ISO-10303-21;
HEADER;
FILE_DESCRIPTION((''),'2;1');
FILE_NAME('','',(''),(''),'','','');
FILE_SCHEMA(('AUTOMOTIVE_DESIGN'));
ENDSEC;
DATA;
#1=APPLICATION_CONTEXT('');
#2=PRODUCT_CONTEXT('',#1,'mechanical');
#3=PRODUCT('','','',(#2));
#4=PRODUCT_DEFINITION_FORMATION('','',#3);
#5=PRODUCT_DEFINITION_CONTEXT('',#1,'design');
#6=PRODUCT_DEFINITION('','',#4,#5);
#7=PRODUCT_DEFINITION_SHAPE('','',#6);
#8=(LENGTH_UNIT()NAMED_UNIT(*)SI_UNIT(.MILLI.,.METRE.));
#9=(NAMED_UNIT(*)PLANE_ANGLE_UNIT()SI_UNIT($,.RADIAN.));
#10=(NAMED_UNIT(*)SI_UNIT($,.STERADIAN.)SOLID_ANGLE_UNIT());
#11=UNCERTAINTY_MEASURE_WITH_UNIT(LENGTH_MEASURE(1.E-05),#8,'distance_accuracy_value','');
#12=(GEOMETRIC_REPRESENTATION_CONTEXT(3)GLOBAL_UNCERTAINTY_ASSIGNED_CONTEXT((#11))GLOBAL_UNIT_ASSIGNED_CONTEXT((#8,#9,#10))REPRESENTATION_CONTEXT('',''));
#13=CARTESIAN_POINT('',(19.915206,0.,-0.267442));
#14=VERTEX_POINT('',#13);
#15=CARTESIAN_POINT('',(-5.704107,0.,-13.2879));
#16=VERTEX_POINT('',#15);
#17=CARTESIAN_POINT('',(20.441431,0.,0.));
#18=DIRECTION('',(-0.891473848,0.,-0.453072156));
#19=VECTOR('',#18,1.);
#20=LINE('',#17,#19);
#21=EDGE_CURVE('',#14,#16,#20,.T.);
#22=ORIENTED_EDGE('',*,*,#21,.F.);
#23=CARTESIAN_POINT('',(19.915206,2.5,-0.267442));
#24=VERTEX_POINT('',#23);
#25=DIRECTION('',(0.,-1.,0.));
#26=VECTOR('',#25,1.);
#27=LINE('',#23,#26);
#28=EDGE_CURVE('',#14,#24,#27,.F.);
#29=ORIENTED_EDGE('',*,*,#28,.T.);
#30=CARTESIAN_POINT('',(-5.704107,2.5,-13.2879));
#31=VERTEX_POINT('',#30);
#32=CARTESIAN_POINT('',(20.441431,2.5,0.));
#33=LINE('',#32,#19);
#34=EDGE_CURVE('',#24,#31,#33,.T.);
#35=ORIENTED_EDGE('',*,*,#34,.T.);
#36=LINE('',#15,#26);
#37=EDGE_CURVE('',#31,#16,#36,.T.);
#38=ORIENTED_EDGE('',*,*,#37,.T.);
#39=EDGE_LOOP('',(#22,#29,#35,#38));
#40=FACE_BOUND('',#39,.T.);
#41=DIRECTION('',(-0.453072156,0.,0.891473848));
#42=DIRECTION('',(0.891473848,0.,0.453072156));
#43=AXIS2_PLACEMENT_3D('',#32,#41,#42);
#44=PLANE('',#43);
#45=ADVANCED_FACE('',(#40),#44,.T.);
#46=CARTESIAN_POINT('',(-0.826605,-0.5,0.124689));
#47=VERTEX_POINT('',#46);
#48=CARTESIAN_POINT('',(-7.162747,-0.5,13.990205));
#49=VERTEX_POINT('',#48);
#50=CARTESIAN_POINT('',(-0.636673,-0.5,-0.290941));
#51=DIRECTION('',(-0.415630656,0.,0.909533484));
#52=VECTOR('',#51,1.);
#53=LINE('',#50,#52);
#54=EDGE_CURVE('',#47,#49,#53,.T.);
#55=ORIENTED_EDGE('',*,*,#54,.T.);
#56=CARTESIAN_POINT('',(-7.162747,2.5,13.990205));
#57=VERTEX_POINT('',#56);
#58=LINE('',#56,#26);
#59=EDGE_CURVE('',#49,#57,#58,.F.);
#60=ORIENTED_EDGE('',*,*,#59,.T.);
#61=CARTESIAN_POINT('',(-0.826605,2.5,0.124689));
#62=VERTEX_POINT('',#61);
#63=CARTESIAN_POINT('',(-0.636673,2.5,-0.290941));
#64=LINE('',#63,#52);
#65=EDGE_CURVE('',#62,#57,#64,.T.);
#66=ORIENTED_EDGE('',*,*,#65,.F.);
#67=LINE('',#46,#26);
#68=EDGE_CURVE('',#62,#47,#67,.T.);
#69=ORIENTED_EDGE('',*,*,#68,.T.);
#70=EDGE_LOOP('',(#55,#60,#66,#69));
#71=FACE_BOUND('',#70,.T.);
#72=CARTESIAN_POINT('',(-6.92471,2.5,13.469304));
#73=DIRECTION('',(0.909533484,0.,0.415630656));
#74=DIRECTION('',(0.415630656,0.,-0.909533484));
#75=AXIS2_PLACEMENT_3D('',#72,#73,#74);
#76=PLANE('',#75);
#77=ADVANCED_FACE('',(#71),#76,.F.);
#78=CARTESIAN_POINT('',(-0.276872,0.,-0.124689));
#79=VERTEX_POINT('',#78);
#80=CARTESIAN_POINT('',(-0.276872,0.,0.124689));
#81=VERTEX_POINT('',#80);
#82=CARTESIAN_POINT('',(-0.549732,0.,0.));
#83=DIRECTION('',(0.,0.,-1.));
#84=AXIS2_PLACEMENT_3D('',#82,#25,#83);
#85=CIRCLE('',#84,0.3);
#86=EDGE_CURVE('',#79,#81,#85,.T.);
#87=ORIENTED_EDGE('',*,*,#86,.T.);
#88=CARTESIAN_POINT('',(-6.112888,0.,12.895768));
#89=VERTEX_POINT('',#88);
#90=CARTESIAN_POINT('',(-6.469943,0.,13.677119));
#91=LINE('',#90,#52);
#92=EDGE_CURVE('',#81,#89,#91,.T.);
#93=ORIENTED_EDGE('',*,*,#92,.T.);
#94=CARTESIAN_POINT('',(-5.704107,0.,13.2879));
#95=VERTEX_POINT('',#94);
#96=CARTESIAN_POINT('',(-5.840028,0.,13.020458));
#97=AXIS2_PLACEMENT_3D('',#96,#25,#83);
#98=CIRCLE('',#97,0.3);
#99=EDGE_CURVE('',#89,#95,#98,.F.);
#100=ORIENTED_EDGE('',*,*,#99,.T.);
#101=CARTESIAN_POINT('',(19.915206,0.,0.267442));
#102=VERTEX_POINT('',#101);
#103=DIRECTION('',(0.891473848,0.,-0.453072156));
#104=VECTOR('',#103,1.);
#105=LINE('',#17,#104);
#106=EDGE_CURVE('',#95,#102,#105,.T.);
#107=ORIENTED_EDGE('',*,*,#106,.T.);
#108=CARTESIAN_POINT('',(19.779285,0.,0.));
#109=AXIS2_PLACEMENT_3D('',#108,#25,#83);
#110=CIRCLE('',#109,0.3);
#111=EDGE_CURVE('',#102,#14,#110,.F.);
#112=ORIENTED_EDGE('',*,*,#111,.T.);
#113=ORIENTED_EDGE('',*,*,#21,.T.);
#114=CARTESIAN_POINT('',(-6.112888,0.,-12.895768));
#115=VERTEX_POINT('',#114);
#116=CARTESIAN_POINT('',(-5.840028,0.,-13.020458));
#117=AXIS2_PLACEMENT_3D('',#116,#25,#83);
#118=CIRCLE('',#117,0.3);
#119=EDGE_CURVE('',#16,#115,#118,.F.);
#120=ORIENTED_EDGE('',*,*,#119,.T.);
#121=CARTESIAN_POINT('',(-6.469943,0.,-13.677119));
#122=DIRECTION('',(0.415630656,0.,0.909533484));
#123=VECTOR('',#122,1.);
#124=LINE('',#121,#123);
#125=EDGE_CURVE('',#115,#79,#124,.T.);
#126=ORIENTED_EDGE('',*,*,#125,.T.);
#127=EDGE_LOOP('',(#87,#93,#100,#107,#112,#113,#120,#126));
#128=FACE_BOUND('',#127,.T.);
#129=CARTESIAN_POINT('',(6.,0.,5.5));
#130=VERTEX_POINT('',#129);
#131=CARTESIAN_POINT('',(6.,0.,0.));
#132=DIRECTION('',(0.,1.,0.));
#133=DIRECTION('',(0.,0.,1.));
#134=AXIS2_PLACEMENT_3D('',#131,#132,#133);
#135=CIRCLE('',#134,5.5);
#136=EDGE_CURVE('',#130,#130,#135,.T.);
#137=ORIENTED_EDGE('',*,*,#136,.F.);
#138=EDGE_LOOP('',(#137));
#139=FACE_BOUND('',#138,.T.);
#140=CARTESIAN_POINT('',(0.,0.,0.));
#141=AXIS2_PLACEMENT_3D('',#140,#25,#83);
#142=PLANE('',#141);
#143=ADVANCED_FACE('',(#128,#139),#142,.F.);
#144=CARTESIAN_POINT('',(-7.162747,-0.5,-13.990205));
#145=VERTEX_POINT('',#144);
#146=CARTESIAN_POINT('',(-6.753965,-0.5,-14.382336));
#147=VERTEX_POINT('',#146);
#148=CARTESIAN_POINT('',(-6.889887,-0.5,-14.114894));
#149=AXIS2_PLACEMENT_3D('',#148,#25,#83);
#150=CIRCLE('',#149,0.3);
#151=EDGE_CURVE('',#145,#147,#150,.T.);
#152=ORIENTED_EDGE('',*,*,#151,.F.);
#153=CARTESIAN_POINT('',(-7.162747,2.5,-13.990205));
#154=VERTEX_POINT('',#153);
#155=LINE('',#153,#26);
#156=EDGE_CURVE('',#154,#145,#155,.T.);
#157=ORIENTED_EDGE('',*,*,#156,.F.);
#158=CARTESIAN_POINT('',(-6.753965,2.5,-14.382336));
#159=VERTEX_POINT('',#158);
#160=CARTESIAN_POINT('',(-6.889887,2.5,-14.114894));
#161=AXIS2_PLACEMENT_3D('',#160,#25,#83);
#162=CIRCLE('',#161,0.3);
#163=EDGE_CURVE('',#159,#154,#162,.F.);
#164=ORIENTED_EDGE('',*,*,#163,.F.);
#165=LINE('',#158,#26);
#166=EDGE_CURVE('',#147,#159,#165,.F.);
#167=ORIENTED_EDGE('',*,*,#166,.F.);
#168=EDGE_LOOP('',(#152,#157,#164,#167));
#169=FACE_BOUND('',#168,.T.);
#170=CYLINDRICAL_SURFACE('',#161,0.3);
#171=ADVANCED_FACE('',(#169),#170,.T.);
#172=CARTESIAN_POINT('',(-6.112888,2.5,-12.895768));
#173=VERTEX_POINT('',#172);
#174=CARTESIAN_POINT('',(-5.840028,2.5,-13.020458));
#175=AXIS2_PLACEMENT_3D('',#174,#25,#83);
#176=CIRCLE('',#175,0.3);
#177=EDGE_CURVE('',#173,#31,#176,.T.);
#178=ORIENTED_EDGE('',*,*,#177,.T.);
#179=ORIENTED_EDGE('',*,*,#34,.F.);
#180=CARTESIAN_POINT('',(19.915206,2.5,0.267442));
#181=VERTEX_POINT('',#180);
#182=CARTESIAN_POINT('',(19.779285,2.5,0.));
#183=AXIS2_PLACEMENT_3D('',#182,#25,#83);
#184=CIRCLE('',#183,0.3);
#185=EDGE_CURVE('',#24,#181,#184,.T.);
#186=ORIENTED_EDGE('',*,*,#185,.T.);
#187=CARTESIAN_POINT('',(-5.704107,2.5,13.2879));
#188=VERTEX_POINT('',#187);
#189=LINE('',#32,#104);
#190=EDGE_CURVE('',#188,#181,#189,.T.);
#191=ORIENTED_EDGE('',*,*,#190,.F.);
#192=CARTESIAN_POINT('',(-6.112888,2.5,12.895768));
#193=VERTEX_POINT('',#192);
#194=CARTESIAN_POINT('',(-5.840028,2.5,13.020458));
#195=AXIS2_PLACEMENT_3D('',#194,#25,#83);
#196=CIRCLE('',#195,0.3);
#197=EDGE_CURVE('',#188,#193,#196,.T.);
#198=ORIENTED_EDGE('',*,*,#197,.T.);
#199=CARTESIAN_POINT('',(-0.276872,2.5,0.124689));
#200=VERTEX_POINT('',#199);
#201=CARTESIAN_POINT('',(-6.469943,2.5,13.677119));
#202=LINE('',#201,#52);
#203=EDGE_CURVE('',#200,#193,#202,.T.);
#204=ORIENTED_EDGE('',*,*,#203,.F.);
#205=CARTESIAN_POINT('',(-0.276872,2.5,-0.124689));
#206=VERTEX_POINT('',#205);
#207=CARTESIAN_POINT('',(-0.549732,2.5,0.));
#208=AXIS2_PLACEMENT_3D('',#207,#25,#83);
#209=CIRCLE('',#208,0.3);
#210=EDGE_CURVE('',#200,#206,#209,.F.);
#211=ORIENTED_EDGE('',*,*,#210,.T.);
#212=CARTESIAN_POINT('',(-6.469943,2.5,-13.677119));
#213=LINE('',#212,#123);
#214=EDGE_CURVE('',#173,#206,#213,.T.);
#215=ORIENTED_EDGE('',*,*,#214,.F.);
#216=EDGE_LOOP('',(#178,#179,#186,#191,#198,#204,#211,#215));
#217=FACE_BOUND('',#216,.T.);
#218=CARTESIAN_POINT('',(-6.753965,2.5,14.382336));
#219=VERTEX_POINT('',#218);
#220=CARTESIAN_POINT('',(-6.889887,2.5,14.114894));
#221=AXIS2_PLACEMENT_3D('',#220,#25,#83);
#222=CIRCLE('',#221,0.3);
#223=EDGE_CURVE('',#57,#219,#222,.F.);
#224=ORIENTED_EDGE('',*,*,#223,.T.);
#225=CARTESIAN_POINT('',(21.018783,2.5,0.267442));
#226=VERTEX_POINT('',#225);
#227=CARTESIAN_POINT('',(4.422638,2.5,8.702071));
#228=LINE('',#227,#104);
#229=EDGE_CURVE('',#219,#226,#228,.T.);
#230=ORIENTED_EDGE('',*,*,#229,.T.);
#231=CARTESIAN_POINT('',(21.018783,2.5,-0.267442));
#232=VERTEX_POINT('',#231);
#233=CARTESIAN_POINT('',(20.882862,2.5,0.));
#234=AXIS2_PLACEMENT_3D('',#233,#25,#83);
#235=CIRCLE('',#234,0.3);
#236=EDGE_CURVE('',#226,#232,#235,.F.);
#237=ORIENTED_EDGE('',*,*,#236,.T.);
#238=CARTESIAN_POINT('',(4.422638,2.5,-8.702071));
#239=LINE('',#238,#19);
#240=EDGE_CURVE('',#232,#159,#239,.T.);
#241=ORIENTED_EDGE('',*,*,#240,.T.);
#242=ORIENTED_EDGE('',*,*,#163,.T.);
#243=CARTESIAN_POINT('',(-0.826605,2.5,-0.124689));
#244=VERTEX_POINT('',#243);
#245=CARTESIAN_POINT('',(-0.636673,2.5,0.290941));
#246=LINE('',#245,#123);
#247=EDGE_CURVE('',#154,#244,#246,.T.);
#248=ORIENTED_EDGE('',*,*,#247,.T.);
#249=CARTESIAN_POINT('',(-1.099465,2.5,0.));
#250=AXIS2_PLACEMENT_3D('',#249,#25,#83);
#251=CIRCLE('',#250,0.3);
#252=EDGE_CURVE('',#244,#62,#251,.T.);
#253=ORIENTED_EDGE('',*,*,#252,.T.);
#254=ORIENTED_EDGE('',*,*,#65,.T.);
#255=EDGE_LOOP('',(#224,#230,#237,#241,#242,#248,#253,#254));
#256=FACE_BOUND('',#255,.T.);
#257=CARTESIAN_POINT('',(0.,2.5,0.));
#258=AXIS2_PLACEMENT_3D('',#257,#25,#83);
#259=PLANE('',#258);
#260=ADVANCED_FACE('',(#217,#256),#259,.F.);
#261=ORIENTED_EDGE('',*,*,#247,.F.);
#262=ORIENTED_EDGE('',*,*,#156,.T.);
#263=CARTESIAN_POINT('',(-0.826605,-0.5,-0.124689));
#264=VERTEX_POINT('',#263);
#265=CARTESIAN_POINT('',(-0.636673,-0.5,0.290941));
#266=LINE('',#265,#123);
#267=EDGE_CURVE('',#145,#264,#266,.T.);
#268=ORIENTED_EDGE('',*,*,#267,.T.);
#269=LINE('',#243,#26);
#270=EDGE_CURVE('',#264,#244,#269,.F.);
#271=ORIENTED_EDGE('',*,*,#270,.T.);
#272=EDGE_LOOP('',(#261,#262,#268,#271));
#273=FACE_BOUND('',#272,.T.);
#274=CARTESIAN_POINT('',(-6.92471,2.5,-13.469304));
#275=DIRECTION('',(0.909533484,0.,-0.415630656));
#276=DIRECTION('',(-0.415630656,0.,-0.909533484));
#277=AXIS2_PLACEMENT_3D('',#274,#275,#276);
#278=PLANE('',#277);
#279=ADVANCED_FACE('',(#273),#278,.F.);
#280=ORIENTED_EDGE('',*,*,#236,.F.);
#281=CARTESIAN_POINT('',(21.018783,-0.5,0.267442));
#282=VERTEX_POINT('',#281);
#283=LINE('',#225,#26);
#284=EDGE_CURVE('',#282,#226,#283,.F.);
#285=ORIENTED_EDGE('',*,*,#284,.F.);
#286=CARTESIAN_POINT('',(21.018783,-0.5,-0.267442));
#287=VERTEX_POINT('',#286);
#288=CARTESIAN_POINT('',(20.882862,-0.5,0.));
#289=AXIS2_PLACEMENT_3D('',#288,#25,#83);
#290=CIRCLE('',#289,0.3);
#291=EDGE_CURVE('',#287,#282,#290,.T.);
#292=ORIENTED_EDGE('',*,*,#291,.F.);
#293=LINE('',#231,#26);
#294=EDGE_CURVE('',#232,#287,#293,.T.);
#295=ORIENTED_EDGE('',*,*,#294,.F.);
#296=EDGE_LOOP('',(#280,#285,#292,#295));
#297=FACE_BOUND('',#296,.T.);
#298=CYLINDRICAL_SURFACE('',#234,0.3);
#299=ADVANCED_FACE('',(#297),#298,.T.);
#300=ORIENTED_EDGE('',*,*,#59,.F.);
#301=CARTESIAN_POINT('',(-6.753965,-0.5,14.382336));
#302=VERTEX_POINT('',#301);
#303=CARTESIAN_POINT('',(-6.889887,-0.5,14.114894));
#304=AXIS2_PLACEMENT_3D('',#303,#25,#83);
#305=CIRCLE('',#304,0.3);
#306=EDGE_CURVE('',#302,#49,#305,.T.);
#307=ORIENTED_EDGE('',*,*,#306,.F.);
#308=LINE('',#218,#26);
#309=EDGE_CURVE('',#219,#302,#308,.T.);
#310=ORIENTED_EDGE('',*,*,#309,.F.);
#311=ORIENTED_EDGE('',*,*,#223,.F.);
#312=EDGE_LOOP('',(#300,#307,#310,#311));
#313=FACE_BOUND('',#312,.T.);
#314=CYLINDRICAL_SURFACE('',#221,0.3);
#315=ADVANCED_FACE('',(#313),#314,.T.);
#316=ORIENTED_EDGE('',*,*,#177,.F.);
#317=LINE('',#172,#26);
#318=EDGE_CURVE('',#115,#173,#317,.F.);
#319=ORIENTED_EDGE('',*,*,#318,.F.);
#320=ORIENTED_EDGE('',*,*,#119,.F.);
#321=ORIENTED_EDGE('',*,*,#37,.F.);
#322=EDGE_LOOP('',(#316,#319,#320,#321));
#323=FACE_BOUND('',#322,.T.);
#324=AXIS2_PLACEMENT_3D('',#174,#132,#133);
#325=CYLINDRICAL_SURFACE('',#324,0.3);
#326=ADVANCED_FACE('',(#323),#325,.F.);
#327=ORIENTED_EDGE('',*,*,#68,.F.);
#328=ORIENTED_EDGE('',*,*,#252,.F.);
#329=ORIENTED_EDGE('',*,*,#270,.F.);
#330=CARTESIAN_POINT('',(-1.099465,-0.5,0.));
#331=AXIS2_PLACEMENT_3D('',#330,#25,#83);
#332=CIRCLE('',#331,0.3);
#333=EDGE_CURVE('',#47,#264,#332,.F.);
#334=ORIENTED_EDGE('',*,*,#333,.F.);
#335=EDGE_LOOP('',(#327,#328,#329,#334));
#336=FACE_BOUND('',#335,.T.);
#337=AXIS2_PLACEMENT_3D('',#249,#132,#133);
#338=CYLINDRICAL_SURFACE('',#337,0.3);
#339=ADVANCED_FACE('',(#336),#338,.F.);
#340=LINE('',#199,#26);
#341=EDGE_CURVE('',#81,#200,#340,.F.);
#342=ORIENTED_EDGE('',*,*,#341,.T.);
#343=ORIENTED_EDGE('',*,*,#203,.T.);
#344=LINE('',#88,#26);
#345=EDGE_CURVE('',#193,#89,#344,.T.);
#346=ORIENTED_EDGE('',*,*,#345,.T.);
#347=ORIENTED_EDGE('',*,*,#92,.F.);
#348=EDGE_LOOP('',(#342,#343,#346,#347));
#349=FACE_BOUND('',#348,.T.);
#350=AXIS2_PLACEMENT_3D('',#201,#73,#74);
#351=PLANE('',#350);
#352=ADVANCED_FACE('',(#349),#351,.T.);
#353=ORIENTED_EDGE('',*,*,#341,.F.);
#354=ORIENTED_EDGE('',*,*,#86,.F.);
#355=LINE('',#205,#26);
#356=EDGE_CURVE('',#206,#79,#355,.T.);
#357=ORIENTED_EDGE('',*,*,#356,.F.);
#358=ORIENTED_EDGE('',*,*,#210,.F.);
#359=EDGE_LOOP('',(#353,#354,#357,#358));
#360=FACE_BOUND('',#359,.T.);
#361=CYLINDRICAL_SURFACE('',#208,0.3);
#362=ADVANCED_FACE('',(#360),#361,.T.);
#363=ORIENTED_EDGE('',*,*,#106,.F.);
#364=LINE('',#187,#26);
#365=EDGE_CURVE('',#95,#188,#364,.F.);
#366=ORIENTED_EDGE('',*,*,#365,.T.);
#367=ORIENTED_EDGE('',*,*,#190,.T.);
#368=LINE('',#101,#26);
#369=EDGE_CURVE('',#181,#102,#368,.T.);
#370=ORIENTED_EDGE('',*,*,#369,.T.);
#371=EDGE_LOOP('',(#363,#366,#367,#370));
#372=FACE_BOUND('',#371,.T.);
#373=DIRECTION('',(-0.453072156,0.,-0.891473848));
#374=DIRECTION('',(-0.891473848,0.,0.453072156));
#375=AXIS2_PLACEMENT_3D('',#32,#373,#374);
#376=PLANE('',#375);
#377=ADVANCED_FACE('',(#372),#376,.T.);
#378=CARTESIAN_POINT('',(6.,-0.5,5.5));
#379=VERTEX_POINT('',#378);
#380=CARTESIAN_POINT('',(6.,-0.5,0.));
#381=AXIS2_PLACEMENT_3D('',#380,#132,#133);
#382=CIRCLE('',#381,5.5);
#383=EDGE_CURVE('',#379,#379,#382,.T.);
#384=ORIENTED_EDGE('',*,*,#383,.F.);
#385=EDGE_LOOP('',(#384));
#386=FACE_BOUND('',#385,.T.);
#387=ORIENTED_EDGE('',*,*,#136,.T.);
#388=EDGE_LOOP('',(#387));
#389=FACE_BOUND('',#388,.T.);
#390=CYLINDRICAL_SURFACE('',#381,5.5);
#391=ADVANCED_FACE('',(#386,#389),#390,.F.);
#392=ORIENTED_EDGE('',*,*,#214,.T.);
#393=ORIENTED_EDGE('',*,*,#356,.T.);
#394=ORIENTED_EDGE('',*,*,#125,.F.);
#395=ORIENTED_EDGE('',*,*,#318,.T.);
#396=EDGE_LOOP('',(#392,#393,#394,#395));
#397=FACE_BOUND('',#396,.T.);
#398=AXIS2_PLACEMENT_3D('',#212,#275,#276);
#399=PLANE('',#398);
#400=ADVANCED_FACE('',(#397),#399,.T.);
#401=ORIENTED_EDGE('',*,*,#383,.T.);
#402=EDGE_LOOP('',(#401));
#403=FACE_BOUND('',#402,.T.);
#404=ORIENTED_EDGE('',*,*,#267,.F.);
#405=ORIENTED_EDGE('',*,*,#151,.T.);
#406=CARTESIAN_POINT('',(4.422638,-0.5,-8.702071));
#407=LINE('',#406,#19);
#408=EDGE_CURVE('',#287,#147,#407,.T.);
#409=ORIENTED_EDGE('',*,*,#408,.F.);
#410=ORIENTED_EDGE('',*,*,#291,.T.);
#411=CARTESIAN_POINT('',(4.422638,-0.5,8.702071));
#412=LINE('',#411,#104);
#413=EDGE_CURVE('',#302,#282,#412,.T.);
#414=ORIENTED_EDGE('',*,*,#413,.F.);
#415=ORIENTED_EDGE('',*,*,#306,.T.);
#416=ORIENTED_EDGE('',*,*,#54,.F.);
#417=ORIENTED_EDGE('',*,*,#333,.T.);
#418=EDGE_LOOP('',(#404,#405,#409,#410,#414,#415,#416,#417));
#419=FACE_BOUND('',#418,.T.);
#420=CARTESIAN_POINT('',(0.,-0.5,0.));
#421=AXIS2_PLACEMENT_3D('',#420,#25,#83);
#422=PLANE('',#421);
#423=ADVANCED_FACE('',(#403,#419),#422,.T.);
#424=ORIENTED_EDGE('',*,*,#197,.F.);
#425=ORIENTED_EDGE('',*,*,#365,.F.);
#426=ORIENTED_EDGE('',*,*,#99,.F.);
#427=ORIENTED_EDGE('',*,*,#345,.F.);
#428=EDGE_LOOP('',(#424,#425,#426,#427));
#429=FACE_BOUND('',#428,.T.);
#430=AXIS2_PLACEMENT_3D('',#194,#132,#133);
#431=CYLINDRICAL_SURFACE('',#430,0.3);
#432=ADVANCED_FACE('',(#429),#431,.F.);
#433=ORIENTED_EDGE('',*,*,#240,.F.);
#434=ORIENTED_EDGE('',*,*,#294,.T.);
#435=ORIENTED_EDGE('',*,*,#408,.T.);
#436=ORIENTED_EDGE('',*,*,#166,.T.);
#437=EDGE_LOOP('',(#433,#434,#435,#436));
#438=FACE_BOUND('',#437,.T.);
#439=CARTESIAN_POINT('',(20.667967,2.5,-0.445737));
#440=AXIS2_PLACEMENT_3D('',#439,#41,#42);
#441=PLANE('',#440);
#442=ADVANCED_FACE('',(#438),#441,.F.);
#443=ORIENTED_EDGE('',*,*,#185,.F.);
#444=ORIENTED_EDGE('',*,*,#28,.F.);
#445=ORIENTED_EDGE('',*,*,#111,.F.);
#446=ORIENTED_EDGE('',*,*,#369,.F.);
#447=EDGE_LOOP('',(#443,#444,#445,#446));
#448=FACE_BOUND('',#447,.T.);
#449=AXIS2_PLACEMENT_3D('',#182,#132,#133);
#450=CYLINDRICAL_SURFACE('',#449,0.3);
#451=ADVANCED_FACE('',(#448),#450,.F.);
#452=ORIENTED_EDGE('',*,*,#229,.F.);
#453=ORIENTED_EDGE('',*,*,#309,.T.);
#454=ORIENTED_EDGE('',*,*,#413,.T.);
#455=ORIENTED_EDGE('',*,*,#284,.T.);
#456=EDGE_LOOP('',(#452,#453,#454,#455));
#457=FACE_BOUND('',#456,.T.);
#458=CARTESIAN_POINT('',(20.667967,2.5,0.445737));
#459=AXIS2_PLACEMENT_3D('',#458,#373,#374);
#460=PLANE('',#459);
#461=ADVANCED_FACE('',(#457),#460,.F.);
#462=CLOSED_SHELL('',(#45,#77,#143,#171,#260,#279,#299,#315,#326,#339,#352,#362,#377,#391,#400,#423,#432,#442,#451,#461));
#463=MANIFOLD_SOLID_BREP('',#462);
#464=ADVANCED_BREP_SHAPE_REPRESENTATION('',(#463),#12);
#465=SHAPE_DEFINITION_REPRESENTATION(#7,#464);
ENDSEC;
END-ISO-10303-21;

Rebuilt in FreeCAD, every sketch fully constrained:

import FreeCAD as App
import Part
import Sketcher

V = App.Vector
Q = App.Units.Quantity


def edges_at(feature, points):
    """Names of the edges that pass closest to the given points."""
    edges = feature.Shape.Edges
    near = lambda p: min(range(len(edges)), key=lambda i: edges[i].distToShape(Part.Vertex(*p))[0])
    return sorted({f"Edge{near(p) + 1}" for p in points})


def faces_at(feature, points):
    """Names of the faces that lie closest to the given points."""
    faces = feature.Shape.Faces
    near = lambda p: min(range(len(faces)), key=lambda i: faces[i].distToShape(Part.Vertex(*p))[0])
    return sorted({f"Face{near(p) + 1}" for p in points})

doc = App.newDocument("Part")
body = doc.addObject("PartDesign::Body", "Body")

# Sketch on XZ plane
sketch1 = body.newObject("Sketcher::SketchObject", "Sketch")
sketch1.AttachmentSupport = (doc.getObject("XZ_Plane"), [""])
sketch1.MapMode = "FlatFace"
sketch1.addGeometry([
    Part.LineSegment(V(-6, -14, 0), V(0, 0, 0)),
    Part.LineSegment(V(0, 0, 0), V(-6, 14, 0)),
    Part.LineSegment(V(-6, 14, 0), V(20, 0, 0)),
    Part.LineSegment(V(20, 0, 0), V(-6, -14, 0)),
], False)
sketch1.addConstraint([
    Sketcher.Constraint("Coincident", 0, 2, 1, 1),
    Sketcher.Constraint("Coincident", 1, 2, 2, 1),
    Sketcher.Constraint("Coincident", 2, 2, 3, 1),
    Sketcher.Constraint("Coincident", 3, 2, 0, 1),
    Sketcher.Constraint("Symmetric", 1, 2, 3, 2, -1),
    Sketcher.Constraint("PointOnObject", 0, 2, -1),
    Sketcher.Constraint("PointOnObject", 2, 2, -1),
    Sketcher.Constraint("Distance", 0, Q("15.037511 mm")),
    Sketcher.Constraint("Distance", 2, Q("30.187508 mm")),
    Sketcher.Constraint("DistanceY", -1, 1, 1, 2, Q("13.677119 mm")),
    Sketcher.Constraint("DistanceX", -1, 1, 2, 2, Q("20.441431 mm")),
])
pad1 = body.newObject("PartDesign::Pad", "Pad")
pad1.Profile = sketch1
pad1.Length = 2.5
pad1.Reversed = True
doc.recompute()

thickness = body.newObject("PartDesign::Thickness", "Thickness")
thickness.Base = (pad1, faces_at(pad1, [(6.986, 2.5, 0)]))
thickness.Value = 0.5
thickness.Reversed = False
thickness.Join = "Intersection"

# Sketch on XZ plane
sketch2 = body.newObject("Sketcher::SketchObject", "Sketch001")
sketch2.AttachmentSupport = (doc.getObject("XZ_Plane"), [""])
sketch2.MapMode = "FlatFace"
sketch2.addGeometry(Part.Circle(V(6, 0, 0), V(0, 0, 1), 6), False)
sketch2.addConstraint([
    Sketcher.Constraint("PointOnObject", 0, 3, -1),
    Sketcher.Constraint("Diameter", 0, Q("11 mm")),
    Sketcher.Constraint("DistanceX", -1, 1, 0, 3, Q("6 mm")),
])
pocket1 = body.newObject("PartDesign::Pocket", "Pocket")
pocket1.Profile = sketch2
pocket1.Type = "ThroughAll"
pocket1.Reversed = True
doc.recompute()

fillet = body.newObject("PartDesign::Fillet", "Fillet")
fillet.Base = (pocket1, edges_at(pocket1, [
    (20.441, 1.25, 0),
    (-6.47, 1.25, -13.677),
    (-0.22, 1.25, 0),
    (-6.47, 1.25, 13.677),
    (21.545, 1, 0),
    (-7.52, 1, 14.772),
    (-0.77, 1, 0),
    (-7.52, 1, -14.772),
]))
fillet.Radius = 0.3

doc.recompute()
